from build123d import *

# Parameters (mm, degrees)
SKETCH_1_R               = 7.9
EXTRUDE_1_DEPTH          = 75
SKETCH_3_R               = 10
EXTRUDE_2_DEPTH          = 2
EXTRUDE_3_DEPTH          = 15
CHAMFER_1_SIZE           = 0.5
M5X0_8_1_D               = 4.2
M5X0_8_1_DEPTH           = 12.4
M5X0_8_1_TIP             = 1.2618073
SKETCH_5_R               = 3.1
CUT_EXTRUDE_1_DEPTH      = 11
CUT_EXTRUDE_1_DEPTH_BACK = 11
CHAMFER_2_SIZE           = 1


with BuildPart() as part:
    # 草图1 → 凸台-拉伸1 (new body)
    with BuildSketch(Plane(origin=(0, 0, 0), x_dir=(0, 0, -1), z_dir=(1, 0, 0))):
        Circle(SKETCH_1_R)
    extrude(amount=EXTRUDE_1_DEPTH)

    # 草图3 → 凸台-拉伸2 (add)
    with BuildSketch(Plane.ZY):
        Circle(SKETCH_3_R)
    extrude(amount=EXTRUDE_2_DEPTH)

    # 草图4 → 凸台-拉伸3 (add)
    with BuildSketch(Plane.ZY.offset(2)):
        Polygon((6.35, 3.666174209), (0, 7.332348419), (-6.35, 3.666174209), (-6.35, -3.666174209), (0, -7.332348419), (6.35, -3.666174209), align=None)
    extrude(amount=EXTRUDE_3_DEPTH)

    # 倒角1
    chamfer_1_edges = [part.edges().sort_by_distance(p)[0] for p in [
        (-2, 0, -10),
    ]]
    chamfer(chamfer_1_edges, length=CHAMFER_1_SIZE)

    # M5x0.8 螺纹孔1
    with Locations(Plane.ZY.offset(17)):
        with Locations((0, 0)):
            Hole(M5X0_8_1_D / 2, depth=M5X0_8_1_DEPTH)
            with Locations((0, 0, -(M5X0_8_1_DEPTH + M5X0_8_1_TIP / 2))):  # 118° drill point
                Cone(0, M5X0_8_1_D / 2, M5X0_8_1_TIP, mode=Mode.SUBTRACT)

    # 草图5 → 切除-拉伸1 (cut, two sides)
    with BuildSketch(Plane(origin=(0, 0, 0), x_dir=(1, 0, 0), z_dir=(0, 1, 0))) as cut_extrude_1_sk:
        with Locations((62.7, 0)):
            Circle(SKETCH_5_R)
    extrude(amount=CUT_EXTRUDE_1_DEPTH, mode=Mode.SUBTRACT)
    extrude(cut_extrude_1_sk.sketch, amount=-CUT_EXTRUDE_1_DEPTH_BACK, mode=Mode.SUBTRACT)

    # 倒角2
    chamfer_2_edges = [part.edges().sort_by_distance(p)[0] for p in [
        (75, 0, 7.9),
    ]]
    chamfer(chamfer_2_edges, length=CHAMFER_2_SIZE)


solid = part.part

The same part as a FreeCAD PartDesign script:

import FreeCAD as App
import Part
import Sketcher
from FreeCAD import Vector
Q = App.Units.Quantity


def edges_at(feature, points):
    """Names of the edges that pass closest to the given points."""
    edges = feature.Shape.Edges
    near = lambda p: min(range(len(edges)), key=lambda i: edges[i].distToShape(Part.Vertex(*p))[0])
    return sorted({f"Edge{near(p) + 1}" for p in points})

doc = App.newDocument("Part")
body = doc.addObject("PartDesign::Body", "Body")

sketch1 = body.newObject("Sketcher::SketchObject", "Sketch")
sketch1.AttachmentSupport = (doc.getObject("YZ_Plane"), [""])
sketch1.MapMode = "FlatFace"
sketch1.addGeometry(Part.Circle(Vector(0, 0, 0), Vector(0, 0, 1), 8), False)
sketch1.addConstraint(Sketcher.Constraint("Coincident", 0, 3, -1, 1))
sketch1.addConstraint(Sketcher.Constraint("Diameter", 0, 15.8))
pad1 = body.newObject("PartDesign::Pad", "Pad")
pad1.Profile = sketch1
pad1.Length = 75

sketch2 = body.newObject("Sketcher::SketchObject", "Sketch001")
sketch2.AttachmentSupport = (doc.getObject("YZ_Plane"), [""])
sketch2.MapMode = "FlatFace"
sketch2.addGeometry(Part.Circle(Vector(0, 0, 0), Vector(0, 0, 1), 10), False)
sketch2.addConstraint(Sketcher.Constraint("Coincident", 0, 3, -1, 1))
sketch2.addConstraint(Sketcher.Constraint("Diameter", 0, 20.0))
pad2 = body.newObject("PartDesign::Pad", "Pad001")
pad2.Profile = sketch2
pad2.Length = 2
pad2.Reversed = True

sketch3 = body.newObject("Sketcher::SketchObject", "Sketch002")
sketch3.AttachmentSupport = (doc.getObject("YZ_Plane"), [""])
sketch3.MapMode = "FlatFace"
sketch3.AttachmentOffset = App.Placement(Vector(0, 0, -2), App.Rotation())
sketch3.addGeometry(Part.LineSegment(Vector(4, 6, 0), Vector(7, 0, 0)), False)
sketch3.addGeometry(Part.LineSegment(Vector(7, 0, 0), Vector(4, -6, 0)), False)
sketch3.addGeometry(Part.LineSegment(Vector(4, -6, 0), Vector(-4, -6, 0)), False)
sketch3.addGeometry(Part.LineSegment(Vector(-4, -6, 0), Vector(-7, 0, 0)), False)
sketch3.addGeometry(Part.LineSegment(Vector(-7, 0, 0), Vector(-4, 6, 0)), False)
sketch3.addGeometry(Part.LineSegment(Vector(-4, 6, 0), Vector(4, 6, 0)), False)
sketch3.addConstraint(Sketcher.Constraint("Coincident", 0, 2, 1, 1))
sketch3.addConstraint(Sketcher.Constraint("Coincident", 1, 2, 2, 1))
sketch3.addConstraint(Sketcher.Constraint("Coincident", 2, 2, 3, 1))
sketch3.addConstraint(Sketcher.Constraint("Coincident", 3, 2, 4, 1))
sketch3.addConstraint(Sketcher.Constraint("Coincident", 4, 2, 5, 1))
sketch3.addConstraint(Sketcher.Constraint("Coincident", 5, 2, 0, 1))
sketch3.addConstraint(Sketcher.Constraint("Horizontal", 2))
sketch3.addConstraint(Sketcher.Constraint("Horizontal", 5))
sketch3.addConstraint(Sketcher.Constraint("Symmetric", 0, 2, 3, 2, -1, 1))
sketch3.addConstraint(Sketcher.Constraint("Symmetric", 1, 2, 4, 2, -1, 1))
sketch3.addConstraint(Sketcher.Constraint("PointOnObject", 0, 2, -1))
sketch3.addConstraint(Sketcher.Constraint("Parallel", 0, 3))
sketch3.addConstraint(Sketcher.Constraint("Vertical", 2, 2, 4, 2))
sketch3.addConstraint(Sketcher.Constraint("Angle", 0, Q("-60 deg")))
sketch3.addConstraint(Sketcher.Constraint("DistanceY", 2, 2, 4, 2, 12.7))
sketch3.addConstraint(Sketcher.Constraint("DistanceX", 2, 2, 2, 1, 7.332348))
pad3 = body.newObject("PartDesign::Pad", "Pad002")
pad3.Profile = sketch3
pad3.Length = 15
pad3.Reversed = True
doc.recompute()

chamfer = body.newObject("PartDesign::Chamfer", "Chamfer")
chamfer.Base = (pad3, edges_at(pad3, [(-2, 0, -10)]))
chamfer.Size = 0.5

sketch4 = body.newObject("Sketcher::SketchObject", "Sketch003")
sketch4.AttachmentSupport = (doc.getObject("YZ_Plane"), [""])
sketch4.MapMode = "FlatFace"
sketch4.AttachmentOffset = App.Placement(Vector(0, 0, -17), App.Rotation())
sketch4.addGeometry(Part.Circle(Vector(0, 0, 0), Vector(0, 0, 1), 2.1), False)
sketch4.addConstraint(Sketcher.Constraint("Coincident", 0, 3, -1, 1))
sketch4.addConstraint(Sketcher.Constraint("Diameter", 0, 4.2))
doc.recompute()
hole = body.newObject("PartDesign::Hole", "Hole")
hole.Profile = sketch4
hole.ThreadType = "None"
hole.Diameter = 4.2
hole.DepthType = "Dimension"
hole.Depth = 12.4
hole.DrillPoint = "Angled"
hole.DrillPointAngle = 118
hole.Reversed = True

sketch5 = body.newObject("Sketcher::SketchObject", "Sketch004")
sketch5.AttachmentSupport = (doc.getObject("XZ_Plane"), [""])
sketch5.MapMode = "FlatFace"
sketch5.addGeometry(Part.Circle(Vector(62.7, 0, 0), Vector(0, 0, 1), 3.1), False)
sketch5.addConstraint(Sketcher.Constraint("PointOnObject", 0, 3, -1))
sketch5.addConstraint(Sketcher.Constraint("Diameter", 0, 6.2))
sketch5.addConstraint(Sketcher.Constraint("DistanceX", -1, 1, 0, 3, 62.7))
pocket1 = body.newObject("PartDesign::Pocket", "Pocket")
pocket1.Profile = sketch5
pocket1.Type = "ThroughAll"
pocket1.Midplane = True
doc.recompute()

chamfer2 = body.newObject("PartDesign::Chamfer", "Chamfer001")
chamfer2.Base = (pocket1, edges_at(pocket1, [(75, 0, 7.9)]))
chamfer2.Size = 1

doc.recompute()
